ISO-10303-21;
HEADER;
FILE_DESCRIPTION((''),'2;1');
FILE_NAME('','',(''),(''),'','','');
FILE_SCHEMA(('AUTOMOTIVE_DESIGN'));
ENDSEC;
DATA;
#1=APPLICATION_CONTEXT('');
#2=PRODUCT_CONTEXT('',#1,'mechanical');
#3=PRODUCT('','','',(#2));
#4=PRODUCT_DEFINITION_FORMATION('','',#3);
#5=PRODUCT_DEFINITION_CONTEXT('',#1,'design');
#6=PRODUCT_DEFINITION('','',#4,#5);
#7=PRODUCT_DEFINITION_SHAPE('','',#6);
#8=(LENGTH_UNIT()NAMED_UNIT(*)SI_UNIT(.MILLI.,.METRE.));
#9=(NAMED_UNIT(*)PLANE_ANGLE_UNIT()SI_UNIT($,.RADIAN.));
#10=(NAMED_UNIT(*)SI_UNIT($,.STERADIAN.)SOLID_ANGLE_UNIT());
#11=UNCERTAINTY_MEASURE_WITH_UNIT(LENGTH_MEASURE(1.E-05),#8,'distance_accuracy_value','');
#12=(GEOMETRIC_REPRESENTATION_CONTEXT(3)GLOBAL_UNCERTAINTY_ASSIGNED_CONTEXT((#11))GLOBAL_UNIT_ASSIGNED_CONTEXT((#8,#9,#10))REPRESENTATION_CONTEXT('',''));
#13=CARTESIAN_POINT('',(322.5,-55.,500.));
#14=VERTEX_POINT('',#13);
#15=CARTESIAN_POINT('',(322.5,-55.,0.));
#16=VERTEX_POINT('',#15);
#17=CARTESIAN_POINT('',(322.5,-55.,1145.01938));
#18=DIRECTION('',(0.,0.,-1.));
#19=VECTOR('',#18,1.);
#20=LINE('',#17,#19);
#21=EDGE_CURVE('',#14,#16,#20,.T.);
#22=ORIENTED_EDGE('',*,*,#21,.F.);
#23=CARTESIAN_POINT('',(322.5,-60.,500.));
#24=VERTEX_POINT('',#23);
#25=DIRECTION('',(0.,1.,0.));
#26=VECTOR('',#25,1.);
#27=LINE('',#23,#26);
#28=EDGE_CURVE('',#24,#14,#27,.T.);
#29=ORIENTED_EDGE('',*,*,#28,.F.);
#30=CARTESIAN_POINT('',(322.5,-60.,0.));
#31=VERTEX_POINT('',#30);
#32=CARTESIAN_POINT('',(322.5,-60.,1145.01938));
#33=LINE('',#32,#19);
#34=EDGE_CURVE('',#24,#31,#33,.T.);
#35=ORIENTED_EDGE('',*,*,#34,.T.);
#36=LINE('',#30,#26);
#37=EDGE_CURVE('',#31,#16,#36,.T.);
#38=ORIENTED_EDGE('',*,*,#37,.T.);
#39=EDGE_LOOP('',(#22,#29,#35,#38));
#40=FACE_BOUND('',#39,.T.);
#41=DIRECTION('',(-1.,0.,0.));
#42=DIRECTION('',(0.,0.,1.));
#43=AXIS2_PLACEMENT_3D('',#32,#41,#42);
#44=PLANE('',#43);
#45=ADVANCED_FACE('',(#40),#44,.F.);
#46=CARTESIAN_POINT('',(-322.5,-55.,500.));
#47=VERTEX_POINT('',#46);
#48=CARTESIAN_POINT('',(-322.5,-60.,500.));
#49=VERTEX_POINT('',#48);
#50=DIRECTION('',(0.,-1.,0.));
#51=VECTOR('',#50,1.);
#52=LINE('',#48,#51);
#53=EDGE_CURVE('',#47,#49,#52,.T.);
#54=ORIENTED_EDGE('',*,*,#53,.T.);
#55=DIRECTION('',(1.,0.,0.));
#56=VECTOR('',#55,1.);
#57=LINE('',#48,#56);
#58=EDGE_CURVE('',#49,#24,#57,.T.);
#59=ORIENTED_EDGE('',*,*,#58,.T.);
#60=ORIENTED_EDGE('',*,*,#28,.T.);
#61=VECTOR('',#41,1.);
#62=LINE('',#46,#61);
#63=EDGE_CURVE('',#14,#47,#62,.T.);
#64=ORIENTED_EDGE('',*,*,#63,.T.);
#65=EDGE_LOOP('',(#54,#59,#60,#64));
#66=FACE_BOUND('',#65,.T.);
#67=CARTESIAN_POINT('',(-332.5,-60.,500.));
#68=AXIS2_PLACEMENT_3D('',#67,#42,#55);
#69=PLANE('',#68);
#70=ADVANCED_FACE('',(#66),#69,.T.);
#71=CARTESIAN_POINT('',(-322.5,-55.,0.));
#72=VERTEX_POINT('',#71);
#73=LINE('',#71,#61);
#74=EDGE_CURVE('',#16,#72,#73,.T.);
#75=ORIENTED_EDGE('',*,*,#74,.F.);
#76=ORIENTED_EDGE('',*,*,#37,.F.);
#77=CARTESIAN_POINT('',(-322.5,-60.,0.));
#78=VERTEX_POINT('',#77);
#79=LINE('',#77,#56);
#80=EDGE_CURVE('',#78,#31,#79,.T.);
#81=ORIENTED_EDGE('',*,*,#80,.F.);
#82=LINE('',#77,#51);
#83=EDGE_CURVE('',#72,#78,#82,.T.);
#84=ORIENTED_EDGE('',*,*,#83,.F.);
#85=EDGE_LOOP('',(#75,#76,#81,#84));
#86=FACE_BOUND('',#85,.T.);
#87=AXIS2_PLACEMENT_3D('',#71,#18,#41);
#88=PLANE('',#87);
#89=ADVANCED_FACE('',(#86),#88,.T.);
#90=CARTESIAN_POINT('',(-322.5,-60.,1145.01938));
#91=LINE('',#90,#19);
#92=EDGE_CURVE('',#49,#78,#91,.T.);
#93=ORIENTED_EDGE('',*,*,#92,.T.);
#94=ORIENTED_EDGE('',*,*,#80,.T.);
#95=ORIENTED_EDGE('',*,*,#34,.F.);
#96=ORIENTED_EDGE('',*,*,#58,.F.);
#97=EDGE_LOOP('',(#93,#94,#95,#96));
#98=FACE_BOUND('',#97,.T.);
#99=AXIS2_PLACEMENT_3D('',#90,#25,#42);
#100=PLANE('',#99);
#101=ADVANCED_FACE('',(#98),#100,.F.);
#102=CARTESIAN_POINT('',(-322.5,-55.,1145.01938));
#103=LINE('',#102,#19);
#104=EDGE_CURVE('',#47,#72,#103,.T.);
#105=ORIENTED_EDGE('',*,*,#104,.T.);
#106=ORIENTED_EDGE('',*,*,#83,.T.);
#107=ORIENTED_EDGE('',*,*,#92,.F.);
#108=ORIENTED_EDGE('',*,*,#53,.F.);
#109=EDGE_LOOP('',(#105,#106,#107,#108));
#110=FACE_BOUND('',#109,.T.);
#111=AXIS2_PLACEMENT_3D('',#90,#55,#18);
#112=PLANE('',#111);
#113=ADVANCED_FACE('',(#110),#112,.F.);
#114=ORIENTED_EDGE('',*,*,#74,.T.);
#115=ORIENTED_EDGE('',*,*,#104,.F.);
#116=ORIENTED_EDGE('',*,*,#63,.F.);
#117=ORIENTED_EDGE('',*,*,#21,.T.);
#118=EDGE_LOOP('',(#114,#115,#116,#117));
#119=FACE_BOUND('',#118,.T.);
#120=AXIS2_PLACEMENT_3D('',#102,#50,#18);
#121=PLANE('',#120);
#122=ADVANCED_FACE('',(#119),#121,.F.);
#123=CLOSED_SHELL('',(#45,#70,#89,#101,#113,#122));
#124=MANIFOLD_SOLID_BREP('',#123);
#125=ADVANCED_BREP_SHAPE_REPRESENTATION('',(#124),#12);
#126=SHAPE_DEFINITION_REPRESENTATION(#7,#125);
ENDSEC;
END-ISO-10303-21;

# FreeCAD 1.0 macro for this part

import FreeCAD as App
import Part
import Sketcher


def add_polygon(sketch, points):
    """Adds a closed chain of lines whose ends are joined by coincident constraints."""
    first, n = sketch.GeometryCount, len(points)
    for a, b in zip(points, points[1:] + points[:1]):
        sketch.addGeometry(Part.LineSegment(App.Vector(*a, 0), App.Vector(*b, 0)), False)
    for i in range(n):
        sketch.addConstraint(Sketcher.Constraint("Coincident", first + i, 2, first + (i + 1) % n, 1))

doc = App.newDocument("Part")
body = doc.addObject("PartDesign::Body", "Body")

# Sketch on XY plane
sketch1 = body.newObject("Sketcher::SketchObject", "Sketch")
sketch1.AttachmentSupport = (doc.getObject("XY_Plane"), [""])
sketch1.MapMode = "FlatFace"
add_polygon(sketch1, [(-322, -55), (-322, -60), (322, -60), (322, -55)])  # lines 0-3
sketch1.addConstraint([
    Sketcher.Constraint("Vertical", 0),
    Sketcher.Constraint("Horizontal", 1),
    Sketcher.Constraint("Vertical", 2),
    Sketcher.Constraint("Horizontal", 3),
    Sketcher.Constraint("DistanceX", 1, 1, 1, 2, 645.0),
    Sketcher.Constraint("DistanceY", 0, 2, 0, 1, 5.0),
    Sketcher.Constraint("DistanceY", 0, 2, -1, 1, 60.0),
    Sketcher.Constraint("DistanceX", 0, 2, -1, 1, 322.5),
])
pad1 = body.newObject("PartDesign::Pad", "Pad")
pad1.Profile = sketch1
pad1.Length = 500

doc.recompute()
